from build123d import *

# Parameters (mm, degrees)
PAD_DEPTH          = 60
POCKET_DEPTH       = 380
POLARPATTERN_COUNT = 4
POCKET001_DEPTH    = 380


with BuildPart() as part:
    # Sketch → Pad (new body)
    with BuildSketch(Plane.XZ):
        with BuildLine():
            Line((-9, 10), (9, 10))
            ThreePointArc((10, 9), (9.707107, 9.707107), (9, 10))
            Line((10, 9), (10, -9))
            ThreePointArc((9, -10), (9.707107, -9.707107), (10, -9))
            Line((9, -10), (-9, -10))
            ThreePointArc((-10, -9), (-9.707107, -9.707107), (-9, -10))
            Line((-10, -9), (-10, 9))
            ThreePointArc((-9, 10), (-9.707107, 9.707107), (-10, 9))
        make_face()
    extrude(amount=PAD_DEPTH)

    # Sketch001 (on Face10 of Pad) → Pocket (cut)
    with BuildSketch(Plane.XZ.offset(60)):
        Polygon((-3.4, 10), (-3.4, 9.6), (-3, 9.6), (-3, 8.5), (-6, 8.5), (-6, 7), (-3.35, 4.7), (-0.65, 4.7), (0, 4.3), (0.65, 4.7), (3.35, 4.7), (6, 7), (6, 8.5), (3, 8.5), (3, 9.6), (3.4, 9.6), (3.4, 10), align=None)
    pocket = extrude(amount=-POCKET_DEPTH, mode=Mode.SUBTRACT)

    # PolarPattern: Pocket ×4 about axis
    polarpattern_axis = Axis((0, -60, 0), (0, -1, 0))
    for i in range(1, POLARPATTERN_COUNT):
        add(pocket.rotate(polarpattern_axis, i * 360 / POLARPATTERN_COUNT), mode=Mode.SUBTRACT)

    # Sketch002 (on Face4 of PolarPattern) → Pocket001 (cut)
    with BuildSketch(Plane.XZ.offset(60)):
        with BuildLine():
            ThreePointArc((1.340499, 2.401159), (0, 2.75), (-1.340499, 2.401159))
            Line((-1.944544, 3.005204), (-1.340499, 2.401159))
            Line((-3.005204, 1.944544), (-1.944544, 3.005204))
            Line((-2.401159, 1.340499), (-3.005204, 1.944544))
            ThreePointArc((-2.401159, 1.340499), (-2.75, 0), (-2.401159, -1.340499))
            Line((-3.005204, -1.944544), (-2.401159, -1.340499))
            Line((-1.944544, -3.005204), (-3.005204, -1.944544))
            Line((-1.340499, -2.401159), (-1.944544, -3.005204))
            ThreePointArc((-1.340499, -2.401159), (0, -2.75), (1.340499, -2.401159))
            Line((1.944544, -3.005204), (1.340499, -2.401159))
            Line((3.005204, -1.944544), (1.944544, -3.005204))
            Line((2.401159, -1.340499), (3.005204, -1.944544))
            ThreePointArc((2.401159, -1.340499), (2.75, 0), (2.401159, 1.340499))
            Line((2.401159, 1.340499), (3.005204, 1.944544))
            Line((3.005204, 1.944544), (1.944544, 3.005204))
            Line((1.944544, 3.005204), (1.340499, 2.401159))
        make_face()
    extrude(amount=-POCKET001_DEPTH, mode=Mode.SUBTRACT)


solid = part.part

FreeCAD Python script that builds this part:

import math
import FreeCAD as App
import Part
import Sketcher
from FreeCAD import Vector

doc = App.newDocument("Part")
params = doc.addObject("Spreadsheet::Sheet", "Params")
for row, (alias, value) in enumerate([
    ("sketch1_radius", "0.999999 mm"),
    ("sketch1_width", "18 mm"),
    ("pad1_length", "60 mm"),
    ("sketch2_width", "3 mm"),
    ("sketch2_width2", "0.4 mm"),
    ("sketch2_width3", "2.7 mm"),
    ("sketch2_width4", "6.8 mm"),
    ("sketch2_height", "1.1 mm"),
    ("pocket1_length", "380 mm"),
    ("sketch3_length", "1.5 mm"),
    ("pocket2_length", "380 mm"),
], start=1):
    params.set(f"A{row}", alias)
    params.set(f"B{row}", "=" + value)
    params.setAlias(f"B{row}", alias)

body = doc.addObject("PartDesign::Body", "Body")

# Sketch on XZ plane
sketch1 = doc.addObject("Sketcher::SketchObject", "Sketch")
body.addObject(sketch1)
sketch1.AttachmentSupport = (doc.XZ_Plane, [""])
sketch1.MapMode = "FlatFace"
sketch1.addGeometry([
    Part.LineSegment(Vector(9, 10, 0), Vector(-9, 10, 0)),  # 0
    Part.ArcOfCircle(Part.Circle(Vector(-9.000001, 9.000001, 0), Vector(0, 0, 1), 0.999999), math.radians(89.999957), math.radians(180.000043)),  # 1
    Part.LineSegment(Vector(-10, 9, 0), Vector(-10, -9, 0)),  # 2
    Part.ArcOfCircle(Part.Circle(Vector(-9.000001, -9.000001, 0), Vector(0, 0, 1), 0.999999), math.radians(179.999957), math.radians(270.000043)),  # 3
    Part.LineSegment(Vector(-9, -10, 0), Vector(9, -10, 0)),  # 4
    Part.ArcOfCircle(Part.Circle(Vector(9.000001, -9.000001, 0), Vector(0, 0, 1), 0.999999), math.radians(-90.000043), math.radians(0.000043)),  # 5
    Part.LineSegment(Vector(10, -9, 0), Vector(10, 9, 0)),  # 6
    Part.ArcOfCircle(Part.Circle(Vector(9.000001, 9.000001, 0), Vector(0, 0, 1), 0.999999), math.radians(-0.000043), math.radians(90.000043)),  # 7
], False)
sketch1.addConstraint([
    Sketcher.Constraint("Tangent", 0, 2, 1, 1),
    Sketcher.Constraint("Tangent", 1, 2, 2, 1),
    Sketcher.Constraint("Tangent", 2, 2, 3, 1),
    Sketcher.Constraint("Tangent", 3, 2, 4, 1),
    Sketcher.Constraint("Tangent", 4, 2, 5, 1),
    Sketcher.Constraint("Tangent", 5, 2, 6, 1),
    Sketcher.Constraint("Tangent", 6, 2, 7, 1),
    Sketcher.Constraint("Tangent", 7, 2, 0, 1),
    Sketcher.Constraint("Horizontal", 0),
    Sketcher.Constraint("Vertical", 2),
    Sketcher.Constraint("Horizontal", 4),
    Sketcher.Constraint("Vertical", 6),
    Sketcher.Constraint("Equal", 1, 3),
    Sketcher.Constraint("Equal", 3, 5),
    Sketcher.Constraint("Equal", 5, 7),
    Sketcher.Constraint("Symmetric", 1, 3, 5, 3, -1, 1),
    Sketcher.Constraint("Equal", 4, 2),
    Sketcher.Constraint("Radius", 1, 0.999999),
    Sketcher.Constraint("DistanceX", 0, 2, 0, 1, 18.0),
])
sketch1.setExpression("Constraints[17]", "Params.sketch1_radius")
sketch1.setExpression("Constraints[18]", "Params.sketch1_width")
pad1 = doc.addObject("PartDesign::Pad", "Pad")
body.addObject(pad1)
pad1.Profile = sketch1
pad1.setExpression("Length", "Params.pad1_length")

# Sketch on XZ plane
sketch2 = doc.addObject("Sketcher::SketchObject", "Sketch001")
body.addObject(sketch2)
sketch2.AttachmentSupport = (doc.XZ_Plane, [""])
sketch2.MapMode = "FlatFace"
sketch2.AttachmentOffset = App.Placement(Vector(0, 0, 60), App.Rotation())
sketch2.addGeometry([
    Part.LineSegment(Vector(-3.4, 10, 0), Vector(-3.4, 9.6, 0)),  # 0
    Part.LineSegment(Vector(-3.4, 9.6, 0), Vector(-3, 9.6, 0)),  # 1
    Part.LineSegment(Vector(-3, 9.6, 0), Vector(-3, 8.5, 0)),  # 2
    Part.LineSegment(Vector(-3, 8.5, 0), Vector(-6, 8.5, 0)),  # 3
    Part.LineSegment(Vector(-6, 8.5, 0), Vector(-6, 7, 0)),  # 4
    Part.LineSegment(Vector(-6, 7, 0), Vector(-3.35, 4.7, 0)),  # 5
    Part.LineSegment(Vector(-3.35, 4.7, 0), Vector(-0.65, 4.7, 0)),  # 6
    Part.LineSegment(Vector(-0.65, 4.7, 0), Vector(0, 4.3, 0)),  # 7
    Part.LineSegment(Vector(0, 4.3, 0), Vector(0.65, 4.7, 0)),  # 8
    Part.LineSegment(Vector(0.65, 4.7, 0), Vector(3.35, 4.7, 0)),  # 9
    Part.LineSegment(Vector(3.35, 4.7, 0), Vector(6, 7, 0)),  # 10
    Part.LineSegment(Vector(6, 7, 0), Vector(6, 8.5, 0)),  # 11
    Part.LineSegment(Vector(6, 8.5, 0), Vector(3, 8.5, 0)),  # 12
    Part.LineSegment(Vector(3, 8.5, 0), Vector(3, 9.6, 0)),  # 13
    Part.LineSegment(Vector(3, 9.6, 0), Vector(3.4, 9.6, 0)),  # 14
    Part.LineSegment(Vector(3.4, 9.6, 0), Vector(3.4, 10, 0)),  # 15
    Part.LineSegment(Vector(3.4, 10, 0), Vector(-3.4, 10, 0)),  # 16
], False)
sketch2.addConstraint([
    Sketcher.Constraint("Coincident", 0, 2, 1, 1),
    Sketcher.Constraint("Coincident", 1, 2, 2, 1),
    Sketcher.Constraint("Coincident", 2, 2, 3, 1),
    Sketcher.Constraint("Coincident", 3, 2, 4, 1),
    Sketcher.Constraint("Coincident", 4, 2, 5, 1),
    Sketcher.Constraint("Coincident", 5, 2, 6, 1),
    Sketcher.Constraint("Coincident", 6, 2, 7, 1),
    Sketcher.Constraint("Coincident", 7, 2, 8, 1),
    Sketcher.Constraint("Coincident", 8, 2, 9, 1),
    Sketcher.Constraint("Coincident", 9, 2, 10, 1),
    Sketcher.Constraint("Coincident", 10, 2, 11, 1),
    Sketcher.Constraint("Coincident", 11, 2, 12, 1),
    Sketcher.Constraint("Coincident", 12, 2, 13, 1),
    Sketcher.Constraint("Coincident", 13, 2, 14, 1),
    Sketcher.Constraint("Coincident", 14, 2, 15, 1),
    Sketcher.Constraint("Coincident", 15, 2, 16, 1),
    Sketcher.Constraint("Coincident", 16, 2, 0, 1),
    Sketcher.Constraint("Vertical", 0),
    Sketcher.Constraint("Horizontal", 1),
    Sketcher.Constraint("Vertical", 2),
    Sketcher.Constraint("Horizontal", 3),
    Sketcher.Constraint("Vertical", 4),
    Sketcher.Constraint("Horizontal", 6),
    Sketcher.Constraint("Horizontal", 9),
    Sketcher.Constraint("Vertical", 11),
    Sketcher.Constraint("Horizontal", 12),
    Sketcher.Constraint("Vertical", 13),
    Sketcher.Constraint("Horizontal", 14),
    Sketcher.Constraint("Vertical", 15),
    Sketcher.Constraint("Horizontal", 16),
    Sketcher.Constraint("Symmetric", 6, 2, 8, 2, -2),
    Sketcher.Constraint("Symmetric", 4, 2, 10, 2, -2),
    Sketcher.Constraint("Symmetric", 2, 2, 12, 2, -2),
    Sketcher.Constraint("Symmetric", 0, 2, 14, 2, -2),
    Sketcher.Constraint("PointOnObject", 7, 2, -2),
    Sketcher.Constraint("Equal", 6, 9),
    Sketcher.Constraint("Equal", 14, 0),
    Sketcher.Constraint("DistanceX", 3, 2, 3, 1, 3.0),
    Sketcher.Constraint("DistanceX", 1, 1, 1, 2, 0.4),
    Sketcher.Constraint("DistanceX", 6, 1, 6, 2, 2.7),
    Sketcher.Constraint("DistanceX", 16, 2, 16, 1, 6.8),
    Sketcher.Constraint("DistanceY", 2, 2, 2, 1, 1.1),
    Sketcher.Constraint("DistanceY", 4, 2, 4, 1, 1.5),
    Sketcher.Constraint("DistanceY", -1, 1, 4, 2, 7.0),
    Sketcher.Constraint("DistanceX", 5, 2, 8, 2, 4.0),
    Sketcher.Constraint("DistanceY", -1, 1, 5, 2, 4.7),
    Sketcher.Constraint("DistanceY", -1, 1, 7, 2, 4.3),
])
sketch2.setExpression("Constraints[37]", "Params.sketch2_width")
sketch2.setExpression("Constraints[38]", "Params.sketch2_width2")
sketch2.setExpression("Constraints[39]", "Params.sketch2_width3")
sketch2.setExpression("Constraints[40]", "Params.sketch2_width4")
sketch2.setExpression("Constraints[41]", "Params.sketch2_height")
pocket1 = doc.addObject("PartDesign::Pocket", "Pocket")
body.addObject(pocket1)
pocket1.Profile = sketch2
pocket1.setExpression("Length", "Params.pocket1_length")
doc.recompute()

polarpattern = doc.addObject("PartDesign::PolarPattern", "PolarPattern")
body.addObject(polarpattern)
polarpattern.Originals = [pocket1]
polarpattern.Axis = (doc.Y_Axis, [""])
polarpattern.Angle = 360
polarpattern.Occurrences = 4
body.Tip = polarpattern

# Sketch on XZ plane
sketch3 = doc.addObject("Sketcher::SketchObject", "Sketch002")
body.addObject(sketch3)
sketch3.AttachmentSupport = (doc.XZ_Plane, [""])
sketch3.MapMode = "FlatFace"
sketch3.AttachmentOffset = App.Placement(Vector(0, 0, 60), App.Rotation())
sketch3.addGeometry([
    Part.ArcOfCircle(Part.Circle(Vector(0, -0.000003, 0), Vector(0, 0, 1), 2.750003), math.radians(60.826646), math.radians(119.173354)),  # 0
    Part.LineSegment(Vector(-1.340499, 2.401159, 0), Vector(-1.944544, 3.005204, 0)),  # 1
    Part.LineSegment(Vector(-1.944544, 3.005204, 0), Vector(-3.005204, 1.944544, 0)),  # 2
    Part.LineSegment(Vector(-3.005204, 1.944544, 0), Vector(-2.401159, 1.340499, 0)),  # 3
    Part.ArcOfCircle(Part.Circle(Vector(0.000003, 0, 0), Vector(0, 0, 1), 2.750003), math.radians(150.826646), math.radians(209.173354)),  # 4
    Part.LineSegment(Vector(-2.401159, -1.340499, 0), Vector(-3.005204, -1.944544, 0)),  # 5
    Part.LineSegment(Vector(-3.005204, -1.944544, 0), Vector(-1.944544, -3.005204, 0)),  # 6
    Part.LineSegment(Vector(-1.944544, -3.005204, 0), Vector(-1.340499, -2.401159, 0)),  # 7
    Part.ArcOfCircle(Part.Circle(Vector(0, 0.000003, 0), Vector(0, 0, 1), 2.750003), math.radians(-119.173354), math.radians(-60.826646)),  # 8
    Part.LineSegment(Vector(1.340499, -2.401159, 0), Vector(1.944544, -3.005204, 0)),  # 9
    Part.LineSegment(Vector(1.944544, -3.005204, 0), Vector(3.005204, -1.944544, 0)),  # 10
    Part.LineSegment(Vector(3.005204, -1.944544, 0), Vector(2.401159, -1.340499, 0)),  # 11
    Part.ArcOfCircle(Part.Circle(Vector(-0.000003, 0, 0), Vector(0, 0, 1), 2.750003), math.radians(-29.173354), math.radians(29.173354)),  # 12
    Part.LineSegment(Vector(2.401159, 1.340499, 0), Vector(3.005204, 1.944544, 0)),  # 13
    Part.LineSegment(Vector(3.005204, 1.944544, 0), Vector(1.944544, 3.005204, 0)),  # 14
    Part.LineSegment(Vector(1.944544, 3.005204, 0), Vector(1.340499, 2.401159, 0)),  # 15
], False)
sketch3.addConstraint([
    Sketcher.Constraint("Coincident", 0, 2, 1, 1),
    Sketcher.Constraint("Coincident", 1, 2, 2, 1),
    Sketcher.Constraint("Coincident", 2, 2, 3, 1),
    Sketcher.Constraint("Coincident", 3, 2, 4, 1),
    Sketcher.Constraint("Coincident", 4, 2, 5, 1),
    Sketcher.Constraint("Coincident", 5, 2, 6, 1),
    Sketcher.Constraint("Coincident", 6, 2, 7, 1),
    Sketcher.Constraint("Coincident", 7, 2, 8, 1),
    Sketcher.Constraint("Coincident", 8, 2, 9, 1),
    Sketcher.Constraint("Coincident", 9, 2, 10, 1),
    Sketcher.Constraint("Coincident", 10, 2, 11, 1),
    Sketcher.Constraint("Coincident", 11, 2, 12, 1),
    Sketcher.Constraint("Coincident", 12, 2, 13, 1),
    Sketcher.Constraint("Coincident", 13, 2, 14, 1),
    Sketcher.Constraint("Coincident", 14, 2, 15, 1),
    Sketcher.Constraint("Coincident", 15, 2, 0, 1),
    Sketcher.Constraint("Coincident", 0, 3, -1, 1),
    Sketcher.Constraint("Coincident", 4, 3, -1, 1),
    Sketcher.Constraint("Coincident", 8, 3, -1, 1),
    Sketcher.Constraint("Coincident", 12, 3, -1, 1),
    Sketcher.Constraint("Equal", 0, 4),
    Sketcher.Constraint("Equal", 4, 8),
    Sketcher.Constraint("Equal", 8, 12),
    Sketcher.Constraint("Symmetric", 1, 2, 9, 2, -1, 1),
    Sketcher.Constraint("Symmetric", 2, 2, 10, 2, -1, 1),
    Sketcher.Constraint("Symmetric", 5, 2, 13, 2, -1, 1),
    Sketcher.Constraint("Symmetric", 6, 2, 14, 2, -1, 1),
    Sketcher.Constraint("Symmetric", 6, 2, 9, 2, -2),
    Sketcher.Constraint("Symmetric", 5, 2, 10, 2, -2),
    Sketcher.Constraint("Perpendicular", 1, 2),
    Sketcher.Constraint("Perpendicular", 2, 3),
    Sketcher.Constraint("Perpendicular", 3, 5),
    Sketcher.Constraint("Perpendicular", 5, 6),
    Sketcher.Constraint("Perpendicular", 6, 7),
    Sketcher.Constraint("Perpendicular", 7, 9),
    Sketcher.Constraint("Perpendicular", 10, 11),
    Sketcher.Constraint("Perpendicular", 11, 13),
    Sketcher.Constraint("Perpendicular", 14, 15),
    Sketcher.Constraint("Equal", 1, 3),
    Sketcher.Constraint("Distance", 2, 1.5),
    Sketcher.Constraint("Radius", 0, 2.750003),
    Sketcher.Constraint("DistanceY", 8, 3, 1, 2, 3.005201),
])
sketch3.setExpression("Constraints[39]", "Params.sketch3_length")
pocket2 = doc.addObject("PartDesign::Pocket", "Pocket001")
body.addObject(pocket2)
pocket2.Profile = sketch3
pocket2.setExpression("Length", "Params.pocket2_length")

doc.recompute()
